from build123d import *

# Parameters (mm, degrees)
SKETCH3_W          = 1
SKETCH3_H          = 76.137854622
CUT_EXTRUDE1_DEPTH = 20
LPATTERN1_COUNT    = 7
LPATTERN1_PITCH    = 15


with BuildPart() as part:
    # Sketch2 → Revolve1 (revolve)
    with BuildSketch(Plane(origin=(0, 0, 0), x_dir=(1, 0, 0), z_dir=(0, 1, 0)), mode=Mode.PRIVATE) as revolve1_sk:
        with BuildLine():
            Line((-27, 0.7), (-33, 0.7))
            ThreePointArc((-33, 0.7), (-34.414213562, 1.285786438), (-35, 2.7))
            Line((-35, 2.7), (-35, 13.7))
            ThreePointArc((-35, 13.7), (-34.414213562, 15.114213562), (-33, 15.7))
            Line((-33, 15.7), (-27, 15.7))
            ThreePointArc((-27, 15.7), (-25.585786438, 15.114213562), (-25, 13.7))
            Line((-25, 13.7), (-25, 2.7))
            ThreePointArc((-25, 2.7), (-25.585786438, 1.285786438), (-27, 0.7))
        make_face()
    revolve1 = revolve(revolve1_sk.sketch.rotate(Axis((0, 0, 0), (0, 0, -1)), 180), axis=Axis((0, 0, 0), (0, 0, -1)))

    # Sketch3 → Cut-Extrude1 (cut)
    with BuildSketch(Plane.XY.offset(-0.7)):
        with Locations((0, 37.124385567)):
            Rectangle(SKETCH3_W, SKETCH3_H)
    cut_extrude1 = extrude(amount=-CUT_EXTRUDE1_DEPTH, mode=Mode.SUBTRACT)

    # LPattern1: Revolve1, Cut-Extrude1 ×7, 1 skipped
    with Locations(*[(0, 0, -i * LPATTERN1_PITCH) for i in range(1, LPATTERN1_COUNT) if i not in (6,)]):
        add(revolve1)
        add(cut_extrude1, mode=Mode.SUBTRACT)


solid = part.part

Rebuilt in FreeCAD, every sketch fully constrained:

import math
import FreeCAD as App
import Part
import Sketcher
Q = App.Units.Quantity


def add_polygon(sketch, points):
    """Adds a closed chain of lines whose ends are joined by coincident constraints."""
    first, n = sketch.GeometryCount, len(points)
    for a, b in zip(points, points[1:] + points[:1]):
        sketch.addGeometry(Part.LineSegment(App.Vector(*a, 0), App.Vector(*b, 0)), False)
    for i in range(n):
        sketch.addConstraint(Sketcher.Constraint("Coincident", first + i, 2, first + (i + 1) % n, 1))

doc = App.newDocument("Part")
body = doc.addObject("PartDesign::Body", "Body")

# Sketch on XZ plane
sketch1 = body.newObject("Sketcher::SketchObject", "Sketch")
sketch1.AttachmentSupport = (doc.getObject("XZ_Plane"), [""])
sketch1.MapMode = "FlatFace"
sketch1.addGeometry([
    Part.LineSegment(App.Vector(-33, -0.7, 0), App.Vector(-27, -0.7, 0)),  # 0
    Part.ArcOfCircle(Part.Circle(App.Vector(-27, -2.7, 0), App.Vector(0, 0, 1), 2), math.radians(0), math.radians(90)),  # 1
    Part.LineSegment(App.Vector(-25, -2.7, 0), App.Vector(-25, -13.7, 0)),  # 2
    Part.ArcOfCircle(Part.Circle(App.Vector(-27, -13.7, 0), App.Vector(0, 0, 1), 2), math.radians(-90), math.radians(0)),  # 3
    Part.LineSegment(App.Vector(-27, -15.7, 0), App.Vector(-33, -15.7, 0)),  # 4
    Part.ArcOfCircle(Part.Circle(App.Vector(-33, -13.7, 0), App.Vector(0, 0, 1), 2), math.radians(-180), math.radians(-90)),  # 5
    Part.LineSegment(App.Vector(-35, -13.7, 0), App.Vector(-35, -2.7, 0)),  # 6
    Part.ArcOfCircle(Part.Circle(App.Vector(-33, -2.7, 0), App.Vector(0, 0, 1), 2), math.radians(90), math.radians(180)),  # 7
], False)
sketch1.addConstraint([
    Sketcher.Constraint("Tangent", 0, 2, 1, 2),
    Sketcher.Constraint("Tangent", 1, 1, 2, 1),
    Sketcher.Constraint("Tangent", 2, 2, 3, 2),
    Sketcher.Constraint("Tangent", 3, 1, 4, 1),
    Sketcher.Constraint("Tangent", 4, 2, 5, 2),
    Sketcher.Constraint("Tangent", 5, 1, 6, 1),
    Sketcher.Constraint("Tangent", 6, 2, 7, 2),
    Sketcher.Constraint("Tangent", 7, 1, 0, 1),
    Sketcher.Constraint("Horizontal", 0),
    Sketcher.Constraint("Vertical", 2),
    Sketcher.Constraint("Horizontal", 4),
    Sketcher.Constraint("Vertical", 6),
    Sketcher.Constraint("Equal", 1, 3),
    Sketcher.Constraint("Equal", 3, 5),
    Sketcher.Constraint("Equal", 5, 7),
    Sketcher.Constraint("Radius", 1, Q("2 mm")),
    Sketcher.Constraint("DistanceX", 0, 1, 0, 2, Q("6 mm")),
    Sketcher.Constraint("DistanceY", 2, 2, 2, 1, Q("11 mm")),
    Sketcher.Constraint("DistanceX", 1, 3, -1, 1, Q("27 mm")),
    Sketcher.Constraint("DistanceY", 1, 3, -1, 1, Q("2.7 mm")),
])
revolution = body.newObject("PartDesign::Revolution", "Revolution")
revolution.Profile = sketch1
revolution.ReferenceAxis = (sketch1, ["V_Axis"])
revolution.Angle = 360

# Sketch on XY plane
sketch2 = body.newObject("Sketcher::SketchObject", "Sketch001")
sketch2.AttachmentSupport = (doc.getObject("XY_Plane"), [""])
sketch2.MapMode = "FlatFace"
sketch2.AttachmentOffset = App.Placement(App.Vector(0, 0, -0.7), App.Rotation())
add_polygon(sketch2, [(-0.5, 75.2), (-0.5, -0.9), (0.5, -0.9), (0.5, 75.2)])  # lines 0-3
sketch2.addConstraint([
    Sketcher.Constraint("Vertical", 0),
    Sketcher.Constraint("Horizontal", 1),
    Sketcher.Constraint("Vertical", 2),
    Sketcher.Constraint("Horizontal", 3),
    Sketcher.Constraint("DistanceX", 1, 1, 1, 2, Q("1 mm")),
    Sketcher.Constraint("DistanceX", 0, 2, -1, 1, Q("0.5 mm")),
    Sketcher.Constraint("DistanceY", 0, 2, 0, 1, Q("76.137855 mm")),
    Sketcher.Constraint("DistanceY", 0, 2, -1, 1, Q("0.944542 mm")),
])
pocket1 = body.newObject("PartDesign::Pocket", "Pocket")
pocket1.Profile = sketch2
pocket1.Length = 20
doc.recompute()

linearpattern = body.newObject("PartDesign::LinearPattern", "LinearPattern")
linearpattern.Originals = [revolution, pocket1]
linearpattern.Direction = (doc.getObject("Z_Axis"), [""])
linearpattern.Mode = "offset"
linearpattern.Offset = 15
linearpattern.Occurrences = 6
linearpattern.Reversed = True
body.Tip = linearpattern

doc.recompute()
